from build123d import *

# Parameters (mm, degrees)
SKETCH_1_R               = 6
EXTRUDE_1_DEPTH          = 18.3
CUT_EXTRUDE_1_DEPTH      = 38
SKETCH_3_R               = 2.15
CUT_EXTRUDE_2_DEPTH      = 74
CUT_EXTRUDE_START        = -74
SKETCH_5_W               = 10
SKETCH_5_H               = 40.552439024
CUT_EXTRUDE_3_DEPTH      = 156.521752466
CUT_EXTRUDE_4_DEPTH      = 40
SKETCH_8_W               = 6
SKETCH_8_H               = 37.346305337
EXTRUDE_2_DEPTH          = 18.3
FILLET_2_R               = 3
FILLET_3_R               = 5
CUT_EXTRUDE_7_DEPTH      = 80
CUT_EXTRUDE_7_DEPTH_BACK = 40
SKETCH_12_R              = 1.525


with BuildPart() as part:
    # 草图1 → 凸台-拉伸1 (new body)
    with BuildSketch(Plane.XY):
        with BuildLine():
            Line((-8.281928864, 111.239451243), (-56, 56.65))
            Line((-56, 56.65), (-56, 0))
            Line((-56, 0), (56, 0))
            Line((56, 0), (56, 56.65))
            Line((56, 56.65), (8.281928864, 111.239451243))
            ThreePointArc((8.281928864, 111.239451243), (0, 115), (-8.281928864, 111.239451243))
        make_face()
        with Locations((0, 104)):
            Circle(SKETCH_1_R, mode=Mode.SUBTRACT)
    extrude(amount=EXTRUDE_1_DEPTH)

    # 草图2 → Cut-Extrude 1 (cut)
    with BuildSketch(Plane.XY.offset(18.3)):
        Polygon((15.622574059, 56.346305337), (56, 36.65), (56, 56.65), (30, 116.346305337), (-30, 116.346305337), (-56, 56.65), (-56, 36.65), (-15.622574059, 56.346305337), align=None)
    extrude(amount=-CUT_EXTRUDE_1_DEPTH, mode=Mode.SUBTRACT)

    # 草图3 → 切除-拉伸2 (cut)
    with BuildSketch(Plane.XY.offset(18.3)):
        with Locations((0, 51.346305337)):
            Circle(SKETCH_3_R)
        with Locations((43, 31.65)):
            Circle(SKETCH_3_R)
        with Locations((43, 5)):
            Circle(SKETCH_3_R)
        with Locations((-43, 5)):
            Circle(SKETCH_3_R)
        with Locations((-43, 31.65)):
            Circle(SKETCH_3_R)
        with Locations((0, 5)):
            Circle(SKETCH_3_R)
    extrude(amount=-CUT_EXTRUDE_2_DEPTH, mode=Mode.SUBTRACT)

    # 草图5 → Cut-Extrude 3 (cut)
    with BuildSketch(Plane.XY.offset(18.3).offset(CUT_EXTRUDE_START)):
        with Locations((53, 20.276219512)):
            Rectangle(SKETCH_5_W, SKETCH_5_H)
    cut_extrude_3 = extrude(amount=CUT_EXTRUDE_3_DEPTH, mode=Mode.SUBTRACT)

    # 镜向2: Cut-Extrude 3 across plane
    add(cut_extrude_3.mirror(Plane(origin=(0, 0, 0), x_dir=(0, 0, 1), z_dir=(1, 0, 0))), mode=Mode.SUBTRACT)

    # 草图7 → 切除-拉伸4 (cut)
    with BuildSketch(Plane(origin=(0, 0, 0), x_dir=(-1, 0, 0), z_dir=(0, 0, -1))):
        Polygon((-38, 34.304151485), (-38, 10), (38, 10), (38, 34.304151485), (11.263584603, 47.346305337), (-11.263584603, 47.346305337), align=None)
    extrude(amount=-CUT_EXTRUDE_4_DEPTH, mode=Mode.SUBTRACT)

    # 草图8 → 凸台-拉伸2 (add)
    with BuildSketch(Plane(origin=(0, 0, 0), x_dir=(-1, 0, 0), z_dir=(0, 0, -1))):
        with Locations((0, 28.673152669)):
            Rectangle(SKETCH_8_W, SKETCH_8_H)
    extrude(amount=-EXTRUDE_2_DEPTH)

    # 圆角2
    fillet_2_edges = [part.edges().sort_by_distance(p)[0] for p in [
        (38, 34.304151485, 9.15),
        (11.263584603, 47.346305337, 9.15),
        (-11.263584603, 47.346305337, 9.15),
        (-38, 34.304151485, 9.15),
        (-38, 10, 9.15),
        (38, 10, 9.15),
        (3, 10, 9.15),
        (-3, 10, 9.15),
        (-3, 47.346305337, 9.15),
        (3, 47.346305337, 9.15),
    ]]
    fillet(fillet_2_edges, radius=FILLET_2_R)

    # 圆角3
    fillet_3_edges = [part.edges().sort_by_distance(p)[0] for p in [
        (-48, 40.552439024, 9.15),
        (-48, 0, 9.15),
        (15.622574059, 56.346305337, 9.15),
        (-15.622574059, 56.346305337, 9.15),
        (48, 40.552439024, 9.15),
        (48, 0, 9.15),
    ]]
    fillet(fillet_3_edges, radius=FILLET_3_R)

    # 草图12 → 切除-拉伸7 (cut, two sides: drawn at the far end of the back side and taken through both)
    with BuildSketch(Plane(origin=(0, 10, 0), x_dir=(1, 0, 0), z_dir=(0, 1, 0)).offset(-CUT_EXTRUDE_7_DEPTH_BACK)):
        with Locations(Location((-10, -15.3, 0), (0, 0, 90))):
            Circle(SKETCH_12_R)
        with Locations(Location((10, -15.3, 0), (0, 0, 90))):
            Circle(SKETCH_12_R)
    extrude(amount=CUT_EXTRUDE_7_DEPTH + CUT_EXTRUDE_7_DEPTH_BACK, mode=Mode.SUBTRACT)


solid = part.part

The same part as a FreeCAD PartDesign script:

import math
import FreeCAD as App
import Part
import Sketcher
from FreeCAD import Vector
Q = App.Units.Quantity


def edges_at(feature, points):
    """Names of the edges that pass closest to the given points."""
    edges = feature.Shape.Edges
    near = lambda p: min(range(len(edges)), key=lambda i: edges[i].distToShape(Part.Vertex(*p))[0])
    return sorted({f"Edge{near(p) + 1}" for p in points})

doc = App.newDocument("Part")
body = doc.addObject("PartDesign::Body", "Body")

sketch1 = doc.addObject("Sketcher::SketchObject", "Sketch")
body.addObject(sketch1)
sketch1.AttachmentSupport = (doc.XY_Plane, [""])
sketch1.MapMode = "FlatFace"
sketch1.addGeometry([
    Part.LineSegment(Vector(-8.281929, 111.239451, 0), Vector(-56, 56.65, 0)),
    Part.LineSegment(Vector(-56, 56.65, 0), Vector(-56, 0, 0)),
    Part.LineSegment(Vector(-56, 0, 0), Vector(56, 0, 0)),
    Part.LineSegment(Vector(56, 0, 0), Vector(56, 56.65, 0)),
    Part.LineSegment(Vector(56, 56.65, 0), Vector(8.281929, 111.239451, 0)),
    Part.ArcOfCircle(Part.Circle(Vector(0, 104, 0), Vector(0, 0, 1), 11), math.radians(41.157558), math.radians(138.842442)),
    Part.Circle(Vector(0, 104, 0), Vector(0, 0, 1), 6),
], False)
sketch1.addConstraint([
    Sketcher.Constraint("Coincident", 0, 2, 1, 1),
    Sketcher.Constraint("Coincident", 1, 2, 2, 1),
    Sketcher.Constraint("Coincident", 2, 2, 3, 1),
    Sketcher.Constraint("Coincident", 3, 2, 4, 1),
    Sketcher.Constraint("Tangent", 4, 2, 5, 1),
    Sketcher.Constraint("Tangent", 5, 2, 0, 1),
    Sketcher.Constraint("Vertical", 1),
    Sketcher.Constraint("Horizontal", 2),
    Sketcher.Constraint("Vertical", 3),
    Sketcher.Constraint("Coincident", 6, 3, 5, 3),
    Sketcher.Constraint("Symmetric", 1, 2, 2, 2, -1, 1),
    Sketcher.Constraint("Symmetric", 4, 2, 5, 2, -2),
    Sketcher.Constraint("Diameter", 6, Q("12 mm")),
    Sketcher.Constraint("Radius", 5, Q("11 mm")),
    Sketcher.Constraint("DistanceX", 2, 1, 2, 2, Q("112 mm")),
    Sketcher.Constraint("DistanceY", -1, 1, 5, 3, Q("104 mm")),
    Sketcher.Constraint("DistanceY", 1, 2, 1, 1, Q("56.65 mm")),
])
pad1 = doc.addObject("PartDesign::Pad", "Pad")
body.addObject(pad1)
pad1.Profile = sketch1
pad1.Length = 18.3

sketch2 = doc.addObject("Sketcher::SketchObject", "Sketch001")
body.addObject(sketch2)
sketch2.AttachmentSupport = (doc.XY_Plane, [""])
sketch2.MapMode = "FlatFace"
sketch2.AttachmentOffset = App.Placement(Vector(0, 0, 18.3), App.Rotation())
sketch2.addGeometry([
    Part.LineSegment(Vector(15.622574, 56.346305, 0), Vector(56, 36.65, 0)),
    Part.LineSegment(Vector(56, 36.65, 0), Vector(56, 56.65, 0)),
    Part.LineSegment(Vector(56, 56.65, 0), Vector(30, 116.346305, 0)),
    Part.LineSegment(Vector(30, 116.346305, 0), Vector(-30, 116.346305, 0)),
    Part.LineSegment(Vector(-30, 116.346305, 0), Vector(-56, 56.65, 0)),
    Part.LineSegment(Vector(-56, 56.65, 0), Vector(-56, 36.65, 0)),
    Part.LineSegment(Vector(-56, 36.65, 0), Vector(-15.622574, 56.346305, 0)),
    Part.LineSegment(Vector(-15.622574, 56.346305, 0), Vector(15.622574, 56.346305, 0)),
], False)
sketch2.addConstraint([
    Sketcher.Constraint("Coincident", 0, 2, 1, 1),
    Sketcher.Constraint("Coincident", 1, 2, 2, 1),
    Sketcher.Constraint("Coincident", 2, 2, 3, 1),
    Sketcher.Constraint("Coincident", 3, 2, 4, 1),
    Sketcher.Constraint("Coincident", 4, 2, 5, 1),
    Sketcher.Constraint("Coincident", 5, 2, 6, 1),
    Sketcher.Constraint("Coincident", 6, 2, 7, 1),
    Sketcher.Constraint("Coincident", 7, 2, 0, 1),
    Sketcher.Constraint("Vertical", 1),
    Sketcher.Constraint("Horizontal", 3),
    Sketcher.Constraint("Vertical", 5),
    Sketcher.Constraint("Horizontal", 7),
    Sketcher.Constraint("Symmetric", 1, 2, 4, 2, -2),
    Sketcher.Constraint("Horizontal", 0, 2, 5, 2),
    Sketcher.Constraint("Equal", 2, 4),
    Sketcher.Constraint("Equal", 0, 6),
    Sketcher.Constraint("DistanceX", 3, 2, 3, 1, Q("60 mm")),
    Sketcher.Constraint("DistanceY", 1, 1, 1, 2, Q("20 mm")),
    Sketcher.Constraint("DistanceX", -1, 1, 0, 2, Q("56 mm")),
    Sketcher.Constraint("DistanceY", 6, 2, 3, 2, Q("60 mm")),
    Sketcher.Constraint("DistanceY", -1, 1, 0, 2, Q("36.65 mm")),
    Sketcher.Constraint("DistanceX", 7, 1, 7, 2, Q("31.245148 mm")),
    Sketcher.Constraint("Distance", 0, Q("44.925282 mm")),
])
pocket1 = doc.addObject("PartDesign::Pocket", "Pocket")
body.addObject(pocket1)
pocket1.Profile = sketch2
pocket1.Length = 38

sketch3 = doc.addObject("Sketcher::SketchObject", "Sketch002")
body.addObject(sketch3)
sketch3.AttachmentSupport = (doc.XY_Plane, [""])
sketch3.MapMode = "FlatFace"
sketch3.AttachmentOffset = App.Placement(Vector(0, 0, 18.3), App.Rotation())
sketch3.addGeometry([
    Part.Circle(Vector(0, 51.346305, 0), Vector(0, 0, 1), 2.15),
    Part.Circle(Vector(43, 31.65, 0), Vector(0, 0, 1), 2.15),
    Part.Circle(Vector(43, 5, 0), Vector(0, 0, 1), 2.15),
    Part.Circle(Vector(-43, 5, 0), Vector(0, 0, 1), 2.15),
    Part.Circle(Vector(-43, 31.65, 0), Vector(0, 0, 1), 2.15),
    Part.Circle(Vector(0, 5, 0), Vector(0, 0, 1), 2.15),
], False)
sketch3.addConstraint([
    Sketcher.Constraint("Equal", 0, 1),
    Sketcher.Constraint("Equal", 1, 2),
    Sketcher.Constraint("Equal", 2, 3),
    Sketcher.Constraint("Equal", 3, 4),
    Sketcher.Constraint("Equal", 4, 5),
    Sketcher.Constraint("Symmetric", 2, 3, 3, 3, -2),
    Sketcher.Constraint("Symmetric", 1, 3, 4, 3, -2),
    Sketcher.Constraint("PointOnObject", 0, 3, -2),
    Sketcher.Constraint("PointOnObject", 5, 3, -2),
    Sketcher.Constraint("Horizontal", 3, 3, 5, 3),
    Sketcher.Constraint("Vertical", 1, 3, 2, 3),
    Sketcher.Constraint("Diameter", 0, Q("4.3 mm")),
    Sketcher.Constraint("DistanceX", -1, 1, 1, 3, Q("43 mm")),
    Sketcher.Constraint("DistanceY", -1, 1, 2, 3, Q("5 mm")),
    Sketcher.Constraint("DistanceY", -1, 1, 1, 3, Q("31.65 mm")),
    Sketcher.Constraint("DistanceY", -1, 1, 0, 3, Q("51.346305 mm")),
])
pocket2 = doc.addObject("PartDesign::Pocket", "Pocket001")
body.addObject(pocket2)
pocket2.Profile = sketch3
pocket2.Length = 74

sketch4 = doc.addObject("Sketcher::SketchObject", "Sketch003")
body.addObject(sketch4)
sketch4.AttachmentSupport = (doc.XY_Plane, [""])
sketch4.MapMode = "FlatFace"
sketch4.AttachmentOffset = App.Placement(Vector(0, 0, -55.7), App.Rotation())
sketch4.addGeometry([
    Part.LineSegment(Vector(48, 40.552439, 0), Vector(48, 0, 0)),
    Part.LineSegment(Vector(48, 0, 0), Vector(58, 0, 0)),
    Part.LineSegment(Vector(58, 0, 0), Vector(58, 40.552439, 0)),
    Part.LineSegment(Vector(58, 40.552439, 0), Vector(48, 40.552439, 0)),
], False)
sketch4.addConstraint([
    Sketcher.Constraint("Coincident", 0, 2, 1, 1),
    Sketcher.Constraint("Coincident", 1, 2, 2, 1),
    Sketcher.Constraint("Coincident", 2, 2, 3, 1),
    Sketcher.Constraint("Coincident", 3, 2, 0, 1),
    Sketcher.Constraint("Vertical", 0),
    Sketcher.Constraint("Horizontal", 1),
    Sketcher.Constraint("Vertical", 2),
    Sketcher.Constraint("Horizontal", 3),
    Sketcher.Constraint("PointOnObject", 0, 2, -1),
    Sketcher.Constraint("DistanceX", 1, 1, 1, 2, Q("10 mm")),
    Sketcher.Constraint("DistanceX", -1, 1, 0, 2, Q("48 mm")),
    Sketcher.Constraint("DistanceY", 0, 2, 0, 1, Q("40.552439 mm")),
])
pocket3 = doc.addObject("PartDesign::Pocket", "Pocket002")
body.addObject(pocket3)
pocket3.Profile = sketch4
pocket3.Length = 156.521752
pocket3.Reversed = True
doc.recompute()

mirrored = doc.addObject("PartDesign::Mirrored", "Mirrored")
body.addObject(mirrored)
mirrored.Originals = [pocket3]
mirrored.MirrorPlane = (doc.YZ_Plane, [""])
body.Tip = mirrored

sketch5 = doc.addObject("Sketcher::SketchObject", "Sketch004")
body.addObject(sketch5)
sketch5.AttachmentSupport = (doc.XY_Plane, [""])
sketch5.MapMode = "FlatFace"
sketch5.addGeometry([
    Part.LineSegment(Vector(38, 34.304151, 0), Vector(38, 10, 0)),
    Part.LineSegment(Vector(38, 10, 0), Vector(-38, 10, 0)),
    Part.LineSegment(Vector(-38, 10, 0), Vector(-38, 34.304151, 0)),
    Part.LineSegment(Vector(-38, 34.304151, 0), Vector(-11.263585, 47.346305, 0)),
    Part.LineSegment(Vector(-11.263585, 47.346305, 0), Vector(11.263585, 47.346305, 0)),
    Part.LineSegment(Vector(11.263585, 47.346305, 0), Vector(38, 34.304151, 0)),
], False)
sketch5.addConstraint([
    Sketcher.Constraint("Coincident", 0, 2, 1, 1),
    Sketcher.Constraint("Coincident", 1, 2, 2, 1),
    Sketcher.Constraint("Coincident", 2, 2, 3, 1),
    Sketcher.Constraint("Coincident", 3, 2, 4, 1),
    Sketcher.Constraint("Coincident", 4, 2, 5, 1),
    Sketcher.Constraint("Coincident", 5, 2, 0, 1),
    Sketcher.Constraint("Vertical", 0),
    Sketcher.Constraint("Horizontal", 1),
    Sketcher.Constraint("Vertical", 2),
    Sketcher.Constraint("Horizontal", 4),
    Sketcher.Constraint("Symmetric", 2, 2, 5, 2, -2),
    Sketcher.Constraint("Equal", 3, 5),
    Sketcher.Constraint("DistanceX", 1, 2, 1, 1, Q("76 mm")),
    Sketcher.Constraint("DistanceY", -1, 1, 0, 2, Q("10 mm")),
    Sketcher.Constraint("DistanceX", 4, 1, 4, 2, Q("22.527169 mm")),
    Sketcher.Constraint("DistanceY", 0, 2, 0, 1, Q("24.304151 mm")),
    Sketcher.Constraint("Distance", 3, Q("29.747835 mm")),
])
pocket4 = doc.addObject("PartDesign::Pocket", "Pocket003")
body.addObject(pocket4)
pocket4.Profile = sketch5
pocket4.Length = 40
pocket4.Reversed = True

sketch6 = doc.addObject("Sketcher::SketchObject", "Sketch005")
body.addObject(sketch6)
sketch6.AttachmentSupport = (doc.XY_Plane, [""])
sketch6.MapMode = "FlatFace"
sketch6.addGeometry([
    Part.LineSegment(Vector(3, 47.346305, 0), Vector(3, 10, 0)),
    Part.LineSegment(Vector(3, 10, 0), Vector(-3, 10, 0)),
    Part.LineSegment(Vector(-3, 10, 0), Vector(-3, 47.346305, 0)),
    Part.LineSegment(Vector(-3, 47.346305, 0), Vector(3, 47.346305, 0)),
], False)
sketch6.addConstraint([
    Sketcher.Constraint("Coincident", 0, 2, 1, 1),
    Sketcher.Constraint("Coincident", 1, 2, 2, 1),
    Sketcher.Constraint("Coincident", 2, 2, 3, 1),
    Sketcher.Constraint("Coincident", 3, 2, 0, 1),
    Sketcher.Constraint("Vertical", 0),
    Sketcher.Constraint("Horizontal", 1),
    Sketcher.Constraint("Vertical", 2),
    Sketcher.Constraint("Horizontal", 3),
    Sketcher.Constraint("DistanceX", 1, 2, 1, 1, Q("6 mm")),
    Sketcher.Constraint("DistanceX", -1, 1, 0, 2, Q("3 mm")),
    Sketcher.Constraint("DistanceY", -1, 1, 0, 2, Q("10 mm")),
    Sketcher.Constraint("DistanceY", 0, 2, 0, 1, Q("37.346305 mm")),
])
pad2 = doc.addObject("PartDesign::Pad", "Pad001")
body.addObject(pad2)
pad2.Profile = sketch6
pad2.Length = 18.3
doc.recompute()

fillet = doc.addObject("PartDesign::Fillet", "Fillet")
body.addObject(fillet)
fillet.Base = (pad2, edges_at(pad2, [
    (38, 34.304, 9.15),
    (11.264, 47.346, 9.15),
    (-11.264, 47.346, 9.15),
    (-38, 34.304, 9.15),
    (-38, 10, 9.15),
    (38, 10, 9.15),
    (3, 10, 9.15),
    (-3, 10, 9.15),
    (-3, 47.346, 9.15),
    (3, 47.346, 9.15),
]))
fillet.Radius = 3
doc.recompute()

fillet2 = doc.addObject("PartDesign::Fillet", "Fillet001")
body.addObject(fillet2)
fillet2.Base = (fillet, edges_at(fillet, [
    (-48, 40.552, 9.15),
    (-48, 0, 9.15),
    (15.623, 56.346, 9.15),
    (-15.623, 56.346, 9.15),
    (48, 40.552, 9.15),
    (48, 0, 9.15),
]))
fillet2.Radius = 5

sketch7 = doc.addObject("Sketcher::SketchObject", "Sketch006")
body.addObject(sketch7)
sketch7.AttachmentSupport = (doc.XZ_Plane, [""])
sketch7.MapMode = "FlatFace"
sketch7.AttachmentOffset = App.Placement(Vector(0, 0, -10), App.Rotation())
sketch7.addGeometry([
    Part.Circle(Vector(-10, 15.3, 0), Vector(0, 0, 1), 1.525),
    Part.Circle(Vector(10, 15.3, 0), Vector(0, 0, 1), 1.525),
], False)
sketch7.addConstraint([
    Sketcher.Constraint("Equal", 0, 1),
    Sketcher.Constraint("Symmetric", 0, 3, 1, 3, -2),
    Sketcher.Constraint("Diameter", 0, Q("3.05 mm")),
    Sketcher.Constraint("DistanceX", 0, 3, -1, 1, Q("10 mm")),
    Sketcher.Constraint("DistanceY", -1, 1, 0, 3, Q("15.3 mm")),
])
pocket5 = doc.addObject("PartDesign::Pocket", "Pocket004")
body.addObject(pocket5)
pocket5.Profile = sketch7
pocket5.Type = "ThroughAll"
pocket5.Midplane = True

doc.recompute()
